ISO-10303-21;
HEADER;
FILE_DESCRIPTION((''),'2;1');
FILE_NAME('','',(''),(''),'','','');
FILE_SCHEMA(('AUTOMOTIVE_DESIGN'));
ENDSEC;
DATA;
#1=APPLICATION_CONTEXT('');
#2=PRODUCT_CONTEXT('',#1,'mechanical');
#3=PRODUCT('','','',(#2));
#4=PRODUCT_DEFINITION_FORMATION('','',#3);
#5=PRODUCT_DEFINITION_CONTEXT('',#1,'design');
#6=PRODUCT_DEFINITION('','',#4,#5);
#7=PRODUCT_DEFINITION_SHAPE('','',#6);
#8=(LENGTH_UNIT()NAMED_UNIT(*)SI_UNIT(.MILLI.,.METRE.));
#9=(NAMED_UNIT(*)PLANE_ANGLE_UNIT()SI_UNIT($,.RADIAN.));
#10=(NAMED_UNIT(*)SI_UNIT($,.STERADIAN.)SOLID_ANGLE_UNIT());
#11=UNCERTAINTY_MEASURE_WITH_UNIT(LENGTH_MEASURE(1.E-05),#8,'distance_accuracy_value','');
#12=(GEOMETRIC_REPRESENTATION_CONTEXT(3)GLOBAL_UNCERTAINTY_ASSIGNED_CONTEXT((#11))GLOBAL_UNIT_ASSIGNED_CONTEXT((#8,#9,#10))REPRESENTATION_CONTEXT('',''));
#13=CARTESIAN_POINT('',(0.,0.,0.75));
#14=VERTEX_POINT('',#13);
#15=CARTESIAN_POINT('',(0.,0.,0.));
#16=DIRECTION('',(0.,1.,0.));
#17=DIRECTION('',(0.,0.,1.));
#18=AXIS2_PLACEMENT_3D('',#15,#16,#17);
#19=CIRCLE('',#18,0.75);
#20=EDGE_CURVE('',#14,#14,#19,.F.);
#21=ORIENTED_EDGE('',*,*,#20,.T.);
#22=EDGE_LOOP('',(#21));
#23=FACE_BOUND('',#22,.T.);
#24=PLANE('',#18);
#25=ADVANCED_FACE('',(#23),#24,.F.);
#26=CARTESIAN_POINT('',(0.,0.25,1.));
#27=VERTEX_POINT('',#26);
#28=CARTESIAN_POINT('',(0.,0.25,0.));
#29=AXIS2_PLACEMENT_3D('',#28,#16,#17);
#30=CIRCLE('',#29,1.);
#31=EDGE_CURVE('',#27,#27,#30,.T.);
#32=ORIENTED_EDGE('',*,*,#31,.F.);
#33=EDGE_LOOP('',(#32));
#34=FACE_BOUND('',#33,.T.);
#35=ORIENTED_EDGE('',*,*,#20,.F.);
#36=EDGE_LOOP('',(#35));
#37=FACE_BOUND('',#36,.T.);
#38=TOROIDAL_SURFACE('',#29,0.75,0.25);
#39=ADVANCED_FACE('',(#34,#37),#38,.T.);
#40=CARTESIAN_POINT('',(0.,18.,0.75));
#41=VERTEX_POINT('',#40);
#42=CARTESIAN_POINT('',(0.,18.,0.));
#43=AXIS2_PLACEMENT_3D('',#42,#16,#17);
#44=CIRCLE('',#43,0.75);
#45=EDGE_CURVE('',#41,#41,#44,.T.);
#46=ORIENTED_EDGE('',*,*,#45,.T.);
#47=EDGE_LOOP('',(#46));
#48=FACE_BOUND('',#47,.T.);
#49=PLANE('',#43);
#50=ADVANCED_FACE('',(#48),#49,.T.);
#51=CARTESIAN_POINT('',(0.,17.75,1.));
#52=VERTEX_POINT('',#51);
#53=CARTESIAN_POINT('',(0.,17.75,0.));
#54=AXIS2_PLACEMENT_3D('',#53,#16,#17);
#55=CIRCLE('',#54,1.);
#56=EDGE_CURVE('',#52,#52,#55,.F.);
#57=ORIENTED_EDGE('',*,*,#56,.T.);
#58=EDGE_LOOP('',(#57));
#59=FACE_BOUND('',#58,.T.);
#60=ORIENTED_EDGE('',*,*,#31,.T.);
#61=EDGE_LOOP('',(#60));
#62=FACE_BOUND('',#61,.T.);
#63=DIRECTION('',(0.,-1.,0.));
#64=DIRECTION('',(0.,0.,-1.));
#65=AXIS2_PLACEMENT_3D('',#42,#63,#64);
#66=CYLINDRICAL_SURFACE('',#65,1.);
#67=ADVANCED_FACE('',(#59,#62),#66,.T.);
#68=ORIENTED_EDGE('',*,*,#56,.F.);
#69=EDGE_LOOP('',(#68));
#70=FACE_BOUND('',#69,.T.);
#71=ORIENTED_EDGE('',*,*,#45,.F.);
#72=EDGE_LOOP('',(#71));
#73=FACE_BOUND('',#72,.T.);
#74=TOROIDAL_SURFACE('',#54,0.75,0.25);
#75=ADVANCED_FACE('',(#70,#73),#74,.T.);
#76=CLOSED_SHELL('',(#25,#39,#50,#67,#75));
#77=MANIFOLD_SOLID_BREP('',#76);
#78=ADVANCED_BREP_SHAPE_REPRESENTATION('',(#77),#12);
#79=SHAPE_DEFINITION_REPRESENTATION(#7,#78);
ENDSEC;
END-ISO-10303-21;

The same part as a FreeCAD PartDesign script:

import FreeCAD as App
import Part
import Sketcher
Q = App.Units.Quantity


def edges_at(feature, points):
    """Names of the edges that pass closest to the given points."""
    edges = feature.Shape.Edges
    near = lambda p: min(range(len(edges)), key=lambda i: edges[i].distToShape(Part.Vertex(*p))[0])
    return sorted({f"Edge{near(p) + 1}" for p in points})

doc = App.newDocument("Part")
body = doc.addObject("PartDesign::Body", "Body")

# Sketch on XZ plane
sketch1 = doc.addObject("Sketcher::SketchObject", "Sketch")
body.addObject(sketch1)
sketch1.AttachmentSupport = (doc.XZ_Plane, [""])
sketch1.MapMode = "FlatFace"
sketch1.addGeometry(Part.Circle(App.Vector(0, 0, 0), App.Vector(0, 0, 1), 1), False)
sketch1.addConstraint(Sketcher.Constraint("Coincident", 0, 3, -1, 1))
sketch1.addConstraint(Sketcher.Constraint("Diameter", 0, Q("2 mm")))
pad1 = doc.addObject("PartDesign::Pad", "Pad")
body.addObject(pad1)
pad1.Profile = sketch1
pad1.Length = 18
pad1.Reversed = True
doc.recompute()

fillet = doc.addObject("PartDesign::Fillet", "Fillet")
body.addObject(fillet)
fillet.Base = (pad1, edges_at(pad1, [(0, 0, -1), (0, 18, -1)]))
fillet.Radius = 0.25

doc.recompute()
